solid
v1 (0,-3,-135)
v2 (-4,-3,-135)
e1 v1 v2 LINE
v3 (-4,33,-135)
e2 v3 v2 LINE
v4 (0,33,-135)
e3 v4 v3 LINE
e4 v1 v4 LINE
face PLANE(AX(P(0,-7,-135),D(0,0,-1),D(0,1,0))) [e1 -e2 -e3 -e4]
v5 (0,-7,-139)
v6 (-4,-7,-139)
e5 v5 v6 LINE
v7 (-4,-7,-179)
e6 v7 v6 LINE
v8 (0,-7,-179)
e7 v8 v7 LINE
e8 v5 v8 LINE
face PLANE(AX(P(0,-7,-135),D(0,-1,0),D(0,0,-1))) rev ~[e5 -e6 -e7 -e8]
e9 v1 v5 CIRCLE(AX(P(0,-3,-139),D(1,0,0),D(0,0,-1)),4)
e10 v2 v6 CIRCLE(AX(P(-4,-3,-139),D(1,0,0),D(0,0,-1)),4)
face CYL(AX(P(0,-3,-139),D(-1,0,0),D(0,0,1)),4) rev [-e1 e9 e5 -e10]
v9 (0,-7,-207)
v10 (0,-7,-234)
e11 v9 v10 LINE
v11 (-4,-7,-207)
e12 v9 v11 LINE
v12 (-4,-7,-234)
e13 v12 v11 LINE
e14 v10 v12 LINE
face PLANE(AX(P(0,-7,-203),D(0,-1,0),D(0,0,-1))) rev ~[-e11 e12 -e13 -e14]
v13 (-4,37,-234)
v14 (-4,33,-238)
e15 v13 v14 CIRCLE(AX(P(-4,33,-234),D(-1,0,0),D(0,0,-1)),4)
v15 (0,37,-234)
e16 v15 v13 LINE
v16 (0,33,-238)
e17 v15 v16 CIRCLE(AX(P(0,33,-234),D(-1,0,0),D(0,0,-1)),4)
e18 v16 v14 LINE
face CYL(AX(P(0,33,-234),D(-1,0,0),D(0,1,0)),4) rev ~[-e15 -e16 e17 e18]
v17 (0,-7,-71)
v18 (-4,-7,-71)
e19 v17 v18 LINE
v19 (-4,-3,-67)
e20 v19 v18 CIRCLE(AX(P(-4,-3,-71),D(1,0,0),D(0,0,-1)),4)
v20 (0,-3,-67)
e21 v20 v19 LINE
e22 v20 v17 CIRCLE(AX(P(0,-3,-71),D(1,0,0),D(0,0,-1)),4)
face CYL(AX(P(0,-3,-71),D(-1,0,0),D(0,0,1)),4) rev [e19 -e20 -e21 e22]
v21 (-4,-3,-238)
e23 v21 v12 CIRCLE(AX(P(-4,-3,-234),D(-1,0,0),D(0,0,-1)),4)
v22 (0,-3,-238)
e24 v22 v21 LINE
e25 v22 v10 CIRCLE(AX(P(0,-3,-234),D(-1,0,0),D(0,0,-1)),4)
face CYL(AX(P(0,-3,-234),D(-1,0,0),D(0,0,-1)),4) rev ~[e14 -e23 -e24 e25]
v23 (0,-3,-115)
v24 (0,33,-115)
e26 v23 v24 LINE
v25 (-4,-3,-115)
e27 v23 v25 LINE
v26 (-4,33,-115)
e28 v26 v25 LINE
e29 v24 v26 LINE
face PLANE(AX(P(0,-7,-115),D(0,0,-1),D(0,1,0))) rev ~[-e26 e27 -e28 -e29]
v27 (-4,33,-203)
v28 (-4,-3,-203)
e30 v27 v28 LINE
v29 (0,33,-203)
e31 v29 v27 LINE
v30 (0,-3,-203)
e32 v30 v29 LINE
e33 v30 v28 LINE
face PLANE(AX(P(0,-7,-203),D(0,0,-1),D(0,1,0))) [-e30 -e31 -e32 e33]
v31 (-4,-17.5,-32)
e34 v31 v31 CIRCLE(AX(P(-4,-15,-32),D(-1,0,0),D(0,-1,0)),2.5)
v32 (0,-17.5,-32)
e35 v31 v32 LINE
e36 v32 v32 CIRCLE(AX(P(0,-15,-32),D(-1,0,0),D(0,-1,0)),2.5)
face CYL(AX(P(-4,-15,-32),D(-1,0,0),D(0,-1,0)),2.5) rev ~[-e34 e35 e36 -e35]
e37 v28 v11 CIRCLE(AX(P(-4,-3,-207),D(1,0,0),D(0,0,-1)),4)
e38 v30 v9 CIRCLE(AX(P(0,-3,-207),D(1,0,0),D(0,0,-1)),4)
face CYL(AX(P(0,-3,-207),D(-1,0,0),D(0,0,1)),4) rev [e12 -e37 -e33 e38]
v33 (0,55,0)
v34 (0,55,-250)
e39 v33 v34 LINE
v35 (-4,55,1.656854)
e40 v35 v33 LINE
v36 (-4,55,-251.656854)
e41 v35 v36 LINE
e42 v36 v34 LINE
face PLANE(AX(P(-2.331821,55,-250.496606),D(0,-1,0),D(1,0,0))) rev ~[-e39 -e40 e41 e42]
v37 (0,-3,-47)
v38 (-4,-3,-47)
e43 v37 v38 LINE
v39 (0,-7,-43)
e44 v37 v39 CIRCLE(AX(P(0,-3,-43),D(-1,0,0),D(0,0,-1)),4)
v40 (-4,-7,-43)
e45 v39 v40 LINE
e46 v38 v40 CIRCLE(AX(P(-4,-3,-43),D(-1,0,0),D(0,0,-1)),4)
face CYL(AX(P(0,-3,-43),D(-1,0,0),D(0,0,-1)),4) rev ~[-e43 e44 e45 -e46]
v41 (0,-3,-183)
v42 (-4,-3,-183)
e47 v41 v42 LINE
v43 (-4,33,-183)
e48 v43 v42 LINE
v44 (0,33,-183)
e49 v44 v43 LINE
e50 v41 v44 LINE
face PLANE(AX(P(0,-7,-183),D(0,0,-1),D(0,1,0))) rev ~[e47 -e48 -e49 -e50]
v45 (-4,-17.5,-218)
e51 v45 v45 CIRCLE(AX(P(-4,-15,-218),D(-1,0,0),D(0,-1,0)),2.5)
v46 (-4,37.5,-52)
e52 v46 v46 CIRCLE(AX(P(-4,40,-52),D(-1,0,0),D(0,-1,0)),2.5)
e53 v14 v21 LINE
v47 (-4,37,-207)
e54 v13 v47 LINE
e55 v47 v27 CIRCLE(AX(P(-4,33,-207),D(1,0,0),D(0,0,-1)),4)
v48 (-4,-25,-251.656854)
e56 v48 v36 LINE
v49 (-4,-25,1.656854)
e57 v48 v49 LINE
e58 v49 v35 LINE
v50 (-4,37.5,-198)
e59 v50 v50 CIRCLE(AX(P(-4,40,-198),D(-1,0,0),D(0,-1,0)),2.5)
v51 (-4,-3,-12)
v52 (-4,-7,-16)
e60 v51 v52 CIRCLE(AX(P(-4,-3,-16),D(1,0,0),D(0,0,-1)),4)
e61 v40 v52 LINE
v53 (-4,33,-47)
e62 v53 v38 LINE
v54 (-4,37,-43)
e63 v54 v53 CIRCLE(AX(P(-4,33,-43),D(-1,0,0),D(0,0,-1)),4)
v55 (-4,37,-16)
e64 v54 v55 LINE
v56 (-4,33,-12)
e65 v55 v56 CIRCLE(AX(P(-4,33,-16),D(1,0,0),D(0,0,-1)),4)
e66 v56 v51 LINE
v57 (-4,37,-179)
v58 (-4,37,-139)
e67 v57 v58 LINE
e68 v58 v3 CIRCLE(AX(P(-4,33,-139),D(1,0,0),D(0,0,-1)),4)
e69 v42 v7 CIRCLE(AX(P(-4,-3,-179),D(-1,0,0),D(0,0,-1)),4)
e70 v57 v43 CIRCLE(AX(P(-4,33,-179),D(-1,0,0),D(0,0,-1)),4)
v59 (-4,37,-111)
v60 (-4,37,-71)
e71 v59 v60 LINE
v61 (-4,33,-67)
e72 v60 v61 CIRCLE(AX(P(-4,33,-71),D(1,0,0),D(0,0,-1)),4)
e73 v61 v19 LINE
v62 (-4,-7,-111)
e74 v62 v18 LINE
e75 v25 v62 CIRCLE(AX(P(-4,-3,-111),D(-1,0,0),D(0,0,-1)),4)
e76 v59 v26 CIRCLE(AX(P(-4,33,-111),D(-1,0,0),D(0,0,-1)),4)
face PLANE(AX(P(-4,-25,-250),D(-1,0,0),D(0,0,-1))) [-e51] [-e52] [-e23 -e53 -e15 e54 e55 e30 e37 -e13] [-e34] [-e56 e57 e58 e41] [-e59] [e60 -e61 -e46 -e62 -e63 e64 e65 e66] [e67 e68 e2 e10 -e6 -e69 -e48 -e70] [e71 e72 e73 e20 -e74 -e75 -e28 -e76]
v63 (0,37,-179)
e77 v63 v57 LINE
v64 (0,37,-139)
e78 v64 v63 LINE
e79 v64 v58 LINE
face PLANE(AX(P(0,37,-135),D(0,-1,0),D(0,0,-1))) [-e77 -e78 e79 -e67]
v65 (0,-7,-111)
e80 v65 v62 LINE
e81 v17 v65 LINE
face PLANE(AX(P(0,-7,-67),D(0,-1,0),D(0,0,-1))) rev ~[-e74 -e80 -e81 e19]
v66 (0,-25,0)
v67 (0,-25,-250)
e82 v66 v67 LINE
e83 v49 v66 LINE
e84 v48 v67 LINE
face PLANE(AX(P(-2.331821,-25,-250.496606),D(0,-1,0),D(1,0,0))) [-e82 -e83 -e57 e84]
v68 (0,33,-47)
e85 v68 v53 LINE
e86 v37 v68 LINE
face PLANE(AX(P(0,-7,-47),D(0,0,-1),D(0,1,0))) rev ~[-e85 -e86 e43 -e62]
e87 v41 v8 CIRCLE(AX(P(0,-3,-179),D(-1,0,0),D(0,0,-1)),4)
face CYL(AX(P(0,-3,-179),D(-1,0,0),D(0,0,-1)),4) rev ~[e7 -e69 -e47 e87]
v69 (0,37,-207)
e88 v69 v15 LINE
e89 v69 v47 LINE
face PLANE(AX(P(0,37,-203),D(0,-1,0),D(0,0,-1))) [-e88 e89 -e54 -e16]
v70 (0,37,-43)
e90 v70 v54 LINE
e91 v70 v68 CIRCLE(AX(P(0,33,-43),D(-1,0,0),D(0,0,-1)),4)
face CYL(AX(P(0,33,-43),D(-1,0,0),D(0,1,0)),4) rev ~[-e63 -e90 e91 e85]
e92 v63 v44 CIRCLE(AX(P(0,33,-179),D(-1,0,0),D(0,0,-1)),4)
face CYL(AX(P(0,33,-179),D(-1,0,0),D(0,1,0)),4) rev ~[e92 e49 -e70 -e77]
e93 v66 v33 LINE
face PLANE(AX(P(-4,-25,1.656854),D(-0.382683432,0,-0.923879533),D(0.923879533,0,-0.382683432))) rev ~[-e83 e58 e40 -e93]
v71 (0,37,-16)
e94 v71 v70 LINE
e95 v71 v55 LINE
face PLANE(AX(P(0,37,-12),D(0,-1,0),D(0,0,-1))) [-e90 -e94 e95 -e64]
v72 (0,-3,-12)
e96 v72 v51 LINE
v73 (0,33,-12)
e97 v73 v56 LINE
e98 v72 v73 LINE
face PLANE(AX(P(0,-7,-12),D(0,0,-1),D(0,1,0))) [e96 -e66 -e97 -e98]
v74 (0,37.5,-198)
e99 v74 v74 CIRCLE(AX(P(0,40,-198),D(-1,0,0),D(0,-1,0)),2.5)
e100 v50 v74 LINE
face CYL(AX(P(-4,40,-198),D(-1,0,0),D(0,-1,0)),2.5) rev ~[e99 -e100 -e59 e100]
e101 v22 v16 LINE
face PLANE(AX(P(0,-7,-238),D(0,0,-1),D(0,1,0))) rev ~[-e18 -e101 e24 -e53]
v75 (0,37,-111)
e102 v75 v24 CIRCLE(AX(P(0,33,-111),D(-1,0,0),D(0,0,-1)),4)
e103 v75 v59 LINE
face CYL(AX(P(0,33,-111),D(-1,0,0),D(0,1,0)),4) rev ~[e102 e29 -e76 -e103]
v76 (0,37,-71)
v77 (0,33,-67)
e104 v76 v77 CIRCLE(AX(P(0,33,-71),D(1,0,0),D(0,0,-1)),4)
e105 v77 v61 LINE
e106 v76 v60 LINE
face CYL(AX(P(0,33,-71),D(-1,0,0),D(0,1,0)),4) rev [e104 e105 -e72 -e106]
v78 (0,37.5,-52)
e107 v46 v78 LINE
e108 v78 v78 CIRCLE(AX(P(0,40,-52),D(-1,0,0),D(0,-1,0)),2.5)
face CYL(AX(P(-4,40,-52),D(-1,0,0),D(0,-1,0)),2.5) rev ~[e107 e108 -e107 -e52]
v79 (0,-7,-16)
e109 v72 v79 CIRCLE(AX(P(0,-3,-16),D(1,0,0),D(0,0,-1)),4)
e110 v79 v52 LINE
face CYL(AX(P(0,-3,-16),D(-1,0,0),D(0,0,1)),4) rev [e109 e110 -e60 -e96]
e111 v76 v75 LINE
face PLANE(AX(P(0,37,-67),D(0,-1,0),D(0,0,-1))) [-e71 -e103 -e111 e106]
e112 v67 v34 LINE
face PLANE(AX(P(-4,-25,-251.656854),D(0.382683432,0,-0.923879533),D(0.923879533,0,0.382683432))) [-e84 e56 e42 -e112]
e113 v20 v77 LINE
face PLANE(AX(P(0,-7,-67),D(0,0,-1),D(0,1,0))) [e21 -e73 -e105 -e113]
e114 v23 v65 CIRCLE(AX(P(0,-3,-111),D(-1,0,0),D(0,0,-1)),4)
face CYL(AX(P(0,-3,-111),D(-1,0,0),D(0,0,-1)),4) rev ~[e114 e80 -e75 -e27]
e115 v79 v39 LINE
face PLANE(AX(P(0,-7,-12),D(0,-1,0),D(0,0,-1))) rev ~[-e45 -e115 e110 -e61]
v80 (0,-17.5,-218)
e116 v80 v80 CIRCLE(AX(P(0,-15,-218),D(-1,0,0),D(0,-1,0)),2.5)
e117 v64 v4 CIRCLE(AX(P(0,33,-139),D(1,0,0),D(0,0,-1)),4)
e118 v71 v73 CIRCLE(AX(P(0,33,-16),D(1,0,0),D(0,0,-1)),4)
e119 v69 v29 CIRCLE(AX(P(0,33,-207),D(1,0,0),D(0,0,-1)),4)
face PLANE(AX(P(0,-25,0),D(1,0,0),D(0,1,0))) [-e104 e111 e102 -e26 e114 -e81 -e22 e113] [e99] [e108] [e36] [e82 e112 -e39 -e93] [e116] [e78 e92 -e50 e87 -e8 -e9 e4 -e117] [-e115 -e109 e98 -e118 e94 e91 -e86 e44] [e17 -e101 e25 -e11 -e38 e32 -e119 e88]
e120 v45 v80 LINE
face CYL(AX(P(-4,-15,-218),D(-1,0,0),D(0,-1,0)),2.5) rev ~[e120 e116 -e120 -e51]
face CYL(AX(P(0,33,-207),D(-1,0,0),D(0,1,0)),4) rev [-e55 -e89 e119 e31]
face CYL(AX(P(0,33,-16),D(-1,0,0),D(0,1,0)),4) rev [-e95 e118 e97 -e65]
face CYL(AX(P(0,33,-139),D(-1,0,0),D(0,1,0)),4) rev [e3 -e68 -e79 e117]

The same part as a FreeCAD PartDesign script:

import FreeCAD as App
import Part
import Sketcher
from FreeCAD import Vector
Q = App.Units.Quantity


def edges_at(feature, points):
    """Names of the edges that pass closest to the given points."""
    edges = feature.Shape.Edges
    near = lambda p: min(range(len(edges)), key=lambda i: edges[i].distToShape(Part.Vertex(*p))[0])
    return sorted({f"Edge{near(p) + 1}" for p in points})


def add_polygon(sketch, points):
    """Adds a closed chain of lines whose ends are joined by coincident constraints."""
    first, n = sketch.GeometryCount, len(points)
    for a, b in zip(points, points[1:] + points[:1]):
        sketch.addGeometry(Part.LineSegment(App.Vector(*a, 0), App.Vector(*b, 0)), False)
    for i in range(n):
        sketch.addConstraint(Sketcher.Constraint("Coincident", first + i, 2, first + (i + 1) % n, 1))

doc = App.newDocument("Part")
params = doc.addObject("Spreadsheet::Sheet", "Params")
for row, (alias, value) in enumerate([
    ("sketch1_width", "4 mm"),
    ("sketch1_height", "80 mm"),
    ("pad1_length", "250 mm"),
    ("sketch2_width", "4 mm"),
    ("pad2_length", "80 mm"),
    ("sketch3_width", "4 mm"),
    ("pad3_length", "80 mm"),
    ("sketch4_width", "44 mm"),
    ("sketch4_height", "35 mm"),
    ("sketch4_height2", "48 mm"),
    ("sketch5_diameter", "5 mm"),
    ("fillet_radius", "4 mm"),
    ("fillet2_radius", "4 mm"),
    ("fillet3_radius", "4 mm"),
    ("fillet4_radius", "4 mm"),
], start=1):
    params.set(f"A{row}", alias)
    params.set(f"B{row}", "=" + value)
    params.setAlias(f"B{row}", alias)

body = doc.addObject("PartDesign::Body", "Body")

# Sketch on XY plane
sketch1 = body.newObject("Sketcher::SketchObject", "Sketch")
sketch1.AttachmentSupport = (doc.getObject("XY_Plane"), [""])
sketch1.MapMode = "FlatFace"
add_polygon(sketch1, [(-4, 55), (-4, -25), (0, -25), (0, 55)])  # lines 0-3
sketch1.addConstraint([
    Sketcher.Constraint("Vertical", 0),
    Sketcher.Constraint("Horizontal", 1),
    Sketcher.Constraint("Vertical", 2),
    Sketcher.Constraint("Horizontal", 3),
    Sketcher.Constraint("PointOnObject", 1, 2, -2),
    Sketcher.Constraint("DistanceX", 1, 1, 1, 2, 4.0),
    Sketcher.Constraint("DistanceY", 0, 2, 0, 1, 80.0),
    Sketcher.Constraint("DistanceY", 0, 2, -1, 1, 25.0),
])
sketch1.setExpression("Constraints[9]", "Params.sketch1_width")
sketch1.setExpression("Constraints[10]", "Params.sketch1_height")
pad1 = body.newObject("PartDesign::Pad", "Pad")
pad1.Profile = sketch1
pad1.setExpression("Length", "Params.pad1_length")
pad1.Reversed = True

# Sketch on XZ plane
sketch2 = body.newObject("Sketcher::SketchObject", "Sketch001")
sketch2.AttachmentSupport = (doc.getObject("XZ_Plane"), [""])
sketch2.MapMode = "FlatFace"
sketch2.AttachmentOffset = App.Placement(Vector(0, 0, 25), App.Rotation())
add_polygon(sketch2, [(-4, 1.7), (-4, 0), (0, 0)])  # lines 0-2
sketch2.addConstraint([
    Sketcher.Constraint("Vertical", 0),
    Sketcher.Constraint("Horizontal", 1),
    Sketcher.Constraint("Coincident", 1, 2, -1, 1),
    Sketcher.Constraint("DistanceX", 1, 1, 1, 2, 4.0),
    Sketcher.Constraint("Angle", 2, Q("157.5 deg")),
])
sketch2.setExpression("Constraints[6]", "Params.sketch2_width")
pad2 = body.newObject("PartDesign::Pad", "Pad001")
pad2.Profile = sketch2
pad2.setExpression("Length", "Params.pad2_length")
pad2.Reversed = True

# Sketch on XZ plane
sketch3 = body.newObject("Sketcher::SketchObject", "Sketch002")
sketch3.AttachmentSupport = (doc.getObject("XZ_Plane"), [""])
sketch3.MapMode = "FlatFace"
sketch3.AttachmentOffset = App.Placement(Vector(0, 0, 25), App.Rotation())
add_polygon(sketch3, [(-4, -250), (-4, -251.7), (0, -250)])  # lines 0-2
sketch3.addConstraint([
    Sketcher.Constraint("Vertical", 0),
    Sketcher.Constraint("Horizontal", 2),
    Sketcher.Constraint("PointOnObject", 1, 2, -2),
    Sketcher.Constraint("DistanceX", 2, 2, 2, 1, 4.0),
    Sketcher.Constraint("DistanceY", 1, 2, -1, 1, 250.0),
    Sketcher.Constraint("Angle", 1, Q("22.5 deg")),
])
sketch3.setExpression("Constraints[6]", "Params.sketch3_width")
pad3 = body.newObject("PartDesign::Pad", "Pad002")
pad3.Profile = sketch3
pad3.setExpression("Length", "Params.pad3_length")
pad3.Reversed = True

# Sketch on YZ plane
sketch4 = body.newObject("Sketcher::SketchObject", "Sketch003")
sketch4.AttachmentSupport = (doc.getObject("YZ_Plane"), [""])
sketch4.MapMode = "FlatFace"
add_polygon(sketch4, [(37, -12), (-7, -12), (-7, -47), (37, -47)])  # lines 0-3
add_polygon(sketch4, [(37, -67), (-7, -67), (-7, -115), (37, -115)])  # lines 4-7
add_polygon(sketch4, [(37, -135), (-7, -135), (-7, -183), (37, -183)])  # lines 8-11
add_polygon(sketch4, [(37, -203), (-7, -203), (-7, -238), (37, -238)])  # lines 12-15
sketch4.addConstraint([
    Sketcher.Constraint("Horizontal", 0),
    Sketcher.Constraint("Vertical", 1),
    Sketcher.Constraint("Horizontal", 2),
    Sketcher.Constraint("Vertical", 3),
    Sketcher.Constraint("Horizontal", 4),
    Sketcher.Constraint("Vertical", 5),
    Sketcher.Constraint("Horizontal", 6),
    Sketcher.Constraint("Vertical", 7),
    Sketcher.Constraint("Horizontal", 8),
    Sketcher.Constraint("Vertical", 9),
    Sketcher.Constraint("Horizontal", 10),
    Sketcher.Constraint("Vertical", 11),
    Sketcher.Constraint("Horizontal", 12),
    Sketcher.Constraint("Vertical", 13),
    Sketcher.Constraint("Horizontal", 14),
    Sketcher.Constraint("Vertical", 15),
    Sketcher.Constraint("Vertical", 1, 2, 4, 2),
    Sketcher.Constraint("Vertical", 3, 2, 6, 2),
    Sketcher.Constraint("Vertical", 5, 2, 8, 2),
    Sketcher.Constraint("Vertical", 7, 2, 10, 2),
    Sketcher.Constraint("Vertical", 9, 2, 12, 2),
    Sketcher.Constraint("Vertical", 11, 2, 14, 2),
    Sketcher.Constraint("Equal", 7, 9),
    Sketcher.Constraint("Equal", 3, 13),
    Sketcher.Constraint("DistanceX", 0, 2, 0, 1, 44.0),
    Sketcher.Constraint("DistanceY", 1, 2, 1, 1, 35.0),
    Sketcher.Constraint("DistanceY", 5, 2, 5, 1, 48.0),
    Sketcher.Constraint("DistanceX", 0, 2, -1, 1, 7.0),
    Sketcher.Constraint("DistanceY", 0, 2, -1, 1, 12.0),
    Sketcher.Constraint("DistanceY", 4, 2, -1, 1, 67.0),
    Sketcher.Constraint("DistanceY", 8, 2, -1, 1, 135.0),
    Sketcher.Constraint("DistanceY", 12, 2, -1, 1, 203.0),
])
sketch4.setExpression("Constraints[40]", "Params.sketch4_width")
sketch4.setExpression("Constraints[41]", "Params.sketch4_height")
sketch4.setExpression("Constraints[42]", "Params.sketch4_height2")
pocket1 = body.newObject("PartDesign::Pocket", "Pocket")
pocket1.Profile = sketch4
pocket1.Type = "ThroughAll"

# Sketch on YZ plane
sketch5 = body.newObject("Sketcher::SketchObject", "Sketch004")
sketch5.AttachmentSupport = (doc.getObject("YZ_Plane"), [""])
sketch5.MapMode = "FlatFace"
sketch5.AttachmentOffset = App.Placement(Vector(0, 0, -4), App.Rotation())
sketch5.addGeometry([
    Part.Circle(Vector(40, -198, 0), Vector(0, 0, 1), 2.5),
    Part.Circle(Vector(-15, -218, 0), Vector(0, 0, 1), 2.5),
    Part.Circle(Vector(40, -52, 0), Vector(0, 0, 1), 2.5),
    Part.Circle(Vector(-15, -32, 0), Vector(0, 0, 1), 2.5),
], False)
sketch5.addConstraint([
    Sketcher.Constraint("Equal", 0, 1),
    Sketcher.Constraint("Equal", 1, 2),
    Sketcher.Constraint("Equal", 2, 3),
    Sketcher.Constraint("Vertical", 0, 3, 2, 3),
    Sketcher.Constraint("Vertical", 1, 3, 3, 3),
    Sketcher.Constraint("Diameter", 0, 5.0),
    Sketcher.Constraint("DistanceX", -1, 1, 0, 3, 40.0),
    Sketcher.Constraint("DistanceY", 0, 3, -1, 1, 198.0),
    Sketcher.Constraint("DistanceX", 1, 3, -1, 1, 15.0),
    Sketcher.Constraint("DistanceY", 1, 3, -1, 1, 218.0),
    Sketcher.Constraint("DistanceY", 2, 3, -1, 1, 52.0),
    Sketcher.Constraint("DistanceY", 3, 3, -1, 1, 32.0),
])
sketch5.setExpression("Constraints[5]", "Params.sketch5_diameter")
pocket2 = body.newObject("PartDesign::Pocket", "Pocket001")
pocket2.Profile = sketch5
pocket2.Type = "ThroughAll"
pocket2.Reversed = True
doc.recompute()

fillet = body.newObject("PartDesign::Fillet", "Fillet")
fillet.Base = (pocket2, edges_at(pocket2, [
    (-2, -7, -12),
    (-2, 37, -12),
    (-2, 37, -47),
    (-2, -7, -47),
]))
fillet.setExpression("Radius", "Params.fillet_radius")
doc.recompute()

fillet2 = body.newObject("PartDesign::Fillet", "Fillet001")
fillet2.Base = (fillet, edges_at(fillet, [
    (-2, -7, -67),
    (-2, 37, -67),
    (-2, 37, -115),
    (-2, -7, -115),
]))
fillet2.setExpression("Radius", "Params.fillet2_radius")
doc.recompute()

fillet3 = body.newObject("PartDesign::Fillet", "Fillet002")
fillet3.Base = (fillet2, edges_at(fillet2, [
    (-2, -7, -135),
    (-2, 37, -135),
    (-2, 37, -183),
    (-2, -7, -183),
]))
fillet3.setExpression("Radius", "Params.fillet3_radius")
doc.recompute()

fillet4 = body.newObject("PartDesign::Fillet", "Fillet003")
fillet4.Base = (fillet3, edges_at(fillet3, [
    (-2, -7, -203),
    (-2, 37, -203),
    (-2, 37, -238),
    (-2, -7, -238),
]))
fillet4.setExpression("Radius", "Params.fillet4_radius")

doc.recompute()
